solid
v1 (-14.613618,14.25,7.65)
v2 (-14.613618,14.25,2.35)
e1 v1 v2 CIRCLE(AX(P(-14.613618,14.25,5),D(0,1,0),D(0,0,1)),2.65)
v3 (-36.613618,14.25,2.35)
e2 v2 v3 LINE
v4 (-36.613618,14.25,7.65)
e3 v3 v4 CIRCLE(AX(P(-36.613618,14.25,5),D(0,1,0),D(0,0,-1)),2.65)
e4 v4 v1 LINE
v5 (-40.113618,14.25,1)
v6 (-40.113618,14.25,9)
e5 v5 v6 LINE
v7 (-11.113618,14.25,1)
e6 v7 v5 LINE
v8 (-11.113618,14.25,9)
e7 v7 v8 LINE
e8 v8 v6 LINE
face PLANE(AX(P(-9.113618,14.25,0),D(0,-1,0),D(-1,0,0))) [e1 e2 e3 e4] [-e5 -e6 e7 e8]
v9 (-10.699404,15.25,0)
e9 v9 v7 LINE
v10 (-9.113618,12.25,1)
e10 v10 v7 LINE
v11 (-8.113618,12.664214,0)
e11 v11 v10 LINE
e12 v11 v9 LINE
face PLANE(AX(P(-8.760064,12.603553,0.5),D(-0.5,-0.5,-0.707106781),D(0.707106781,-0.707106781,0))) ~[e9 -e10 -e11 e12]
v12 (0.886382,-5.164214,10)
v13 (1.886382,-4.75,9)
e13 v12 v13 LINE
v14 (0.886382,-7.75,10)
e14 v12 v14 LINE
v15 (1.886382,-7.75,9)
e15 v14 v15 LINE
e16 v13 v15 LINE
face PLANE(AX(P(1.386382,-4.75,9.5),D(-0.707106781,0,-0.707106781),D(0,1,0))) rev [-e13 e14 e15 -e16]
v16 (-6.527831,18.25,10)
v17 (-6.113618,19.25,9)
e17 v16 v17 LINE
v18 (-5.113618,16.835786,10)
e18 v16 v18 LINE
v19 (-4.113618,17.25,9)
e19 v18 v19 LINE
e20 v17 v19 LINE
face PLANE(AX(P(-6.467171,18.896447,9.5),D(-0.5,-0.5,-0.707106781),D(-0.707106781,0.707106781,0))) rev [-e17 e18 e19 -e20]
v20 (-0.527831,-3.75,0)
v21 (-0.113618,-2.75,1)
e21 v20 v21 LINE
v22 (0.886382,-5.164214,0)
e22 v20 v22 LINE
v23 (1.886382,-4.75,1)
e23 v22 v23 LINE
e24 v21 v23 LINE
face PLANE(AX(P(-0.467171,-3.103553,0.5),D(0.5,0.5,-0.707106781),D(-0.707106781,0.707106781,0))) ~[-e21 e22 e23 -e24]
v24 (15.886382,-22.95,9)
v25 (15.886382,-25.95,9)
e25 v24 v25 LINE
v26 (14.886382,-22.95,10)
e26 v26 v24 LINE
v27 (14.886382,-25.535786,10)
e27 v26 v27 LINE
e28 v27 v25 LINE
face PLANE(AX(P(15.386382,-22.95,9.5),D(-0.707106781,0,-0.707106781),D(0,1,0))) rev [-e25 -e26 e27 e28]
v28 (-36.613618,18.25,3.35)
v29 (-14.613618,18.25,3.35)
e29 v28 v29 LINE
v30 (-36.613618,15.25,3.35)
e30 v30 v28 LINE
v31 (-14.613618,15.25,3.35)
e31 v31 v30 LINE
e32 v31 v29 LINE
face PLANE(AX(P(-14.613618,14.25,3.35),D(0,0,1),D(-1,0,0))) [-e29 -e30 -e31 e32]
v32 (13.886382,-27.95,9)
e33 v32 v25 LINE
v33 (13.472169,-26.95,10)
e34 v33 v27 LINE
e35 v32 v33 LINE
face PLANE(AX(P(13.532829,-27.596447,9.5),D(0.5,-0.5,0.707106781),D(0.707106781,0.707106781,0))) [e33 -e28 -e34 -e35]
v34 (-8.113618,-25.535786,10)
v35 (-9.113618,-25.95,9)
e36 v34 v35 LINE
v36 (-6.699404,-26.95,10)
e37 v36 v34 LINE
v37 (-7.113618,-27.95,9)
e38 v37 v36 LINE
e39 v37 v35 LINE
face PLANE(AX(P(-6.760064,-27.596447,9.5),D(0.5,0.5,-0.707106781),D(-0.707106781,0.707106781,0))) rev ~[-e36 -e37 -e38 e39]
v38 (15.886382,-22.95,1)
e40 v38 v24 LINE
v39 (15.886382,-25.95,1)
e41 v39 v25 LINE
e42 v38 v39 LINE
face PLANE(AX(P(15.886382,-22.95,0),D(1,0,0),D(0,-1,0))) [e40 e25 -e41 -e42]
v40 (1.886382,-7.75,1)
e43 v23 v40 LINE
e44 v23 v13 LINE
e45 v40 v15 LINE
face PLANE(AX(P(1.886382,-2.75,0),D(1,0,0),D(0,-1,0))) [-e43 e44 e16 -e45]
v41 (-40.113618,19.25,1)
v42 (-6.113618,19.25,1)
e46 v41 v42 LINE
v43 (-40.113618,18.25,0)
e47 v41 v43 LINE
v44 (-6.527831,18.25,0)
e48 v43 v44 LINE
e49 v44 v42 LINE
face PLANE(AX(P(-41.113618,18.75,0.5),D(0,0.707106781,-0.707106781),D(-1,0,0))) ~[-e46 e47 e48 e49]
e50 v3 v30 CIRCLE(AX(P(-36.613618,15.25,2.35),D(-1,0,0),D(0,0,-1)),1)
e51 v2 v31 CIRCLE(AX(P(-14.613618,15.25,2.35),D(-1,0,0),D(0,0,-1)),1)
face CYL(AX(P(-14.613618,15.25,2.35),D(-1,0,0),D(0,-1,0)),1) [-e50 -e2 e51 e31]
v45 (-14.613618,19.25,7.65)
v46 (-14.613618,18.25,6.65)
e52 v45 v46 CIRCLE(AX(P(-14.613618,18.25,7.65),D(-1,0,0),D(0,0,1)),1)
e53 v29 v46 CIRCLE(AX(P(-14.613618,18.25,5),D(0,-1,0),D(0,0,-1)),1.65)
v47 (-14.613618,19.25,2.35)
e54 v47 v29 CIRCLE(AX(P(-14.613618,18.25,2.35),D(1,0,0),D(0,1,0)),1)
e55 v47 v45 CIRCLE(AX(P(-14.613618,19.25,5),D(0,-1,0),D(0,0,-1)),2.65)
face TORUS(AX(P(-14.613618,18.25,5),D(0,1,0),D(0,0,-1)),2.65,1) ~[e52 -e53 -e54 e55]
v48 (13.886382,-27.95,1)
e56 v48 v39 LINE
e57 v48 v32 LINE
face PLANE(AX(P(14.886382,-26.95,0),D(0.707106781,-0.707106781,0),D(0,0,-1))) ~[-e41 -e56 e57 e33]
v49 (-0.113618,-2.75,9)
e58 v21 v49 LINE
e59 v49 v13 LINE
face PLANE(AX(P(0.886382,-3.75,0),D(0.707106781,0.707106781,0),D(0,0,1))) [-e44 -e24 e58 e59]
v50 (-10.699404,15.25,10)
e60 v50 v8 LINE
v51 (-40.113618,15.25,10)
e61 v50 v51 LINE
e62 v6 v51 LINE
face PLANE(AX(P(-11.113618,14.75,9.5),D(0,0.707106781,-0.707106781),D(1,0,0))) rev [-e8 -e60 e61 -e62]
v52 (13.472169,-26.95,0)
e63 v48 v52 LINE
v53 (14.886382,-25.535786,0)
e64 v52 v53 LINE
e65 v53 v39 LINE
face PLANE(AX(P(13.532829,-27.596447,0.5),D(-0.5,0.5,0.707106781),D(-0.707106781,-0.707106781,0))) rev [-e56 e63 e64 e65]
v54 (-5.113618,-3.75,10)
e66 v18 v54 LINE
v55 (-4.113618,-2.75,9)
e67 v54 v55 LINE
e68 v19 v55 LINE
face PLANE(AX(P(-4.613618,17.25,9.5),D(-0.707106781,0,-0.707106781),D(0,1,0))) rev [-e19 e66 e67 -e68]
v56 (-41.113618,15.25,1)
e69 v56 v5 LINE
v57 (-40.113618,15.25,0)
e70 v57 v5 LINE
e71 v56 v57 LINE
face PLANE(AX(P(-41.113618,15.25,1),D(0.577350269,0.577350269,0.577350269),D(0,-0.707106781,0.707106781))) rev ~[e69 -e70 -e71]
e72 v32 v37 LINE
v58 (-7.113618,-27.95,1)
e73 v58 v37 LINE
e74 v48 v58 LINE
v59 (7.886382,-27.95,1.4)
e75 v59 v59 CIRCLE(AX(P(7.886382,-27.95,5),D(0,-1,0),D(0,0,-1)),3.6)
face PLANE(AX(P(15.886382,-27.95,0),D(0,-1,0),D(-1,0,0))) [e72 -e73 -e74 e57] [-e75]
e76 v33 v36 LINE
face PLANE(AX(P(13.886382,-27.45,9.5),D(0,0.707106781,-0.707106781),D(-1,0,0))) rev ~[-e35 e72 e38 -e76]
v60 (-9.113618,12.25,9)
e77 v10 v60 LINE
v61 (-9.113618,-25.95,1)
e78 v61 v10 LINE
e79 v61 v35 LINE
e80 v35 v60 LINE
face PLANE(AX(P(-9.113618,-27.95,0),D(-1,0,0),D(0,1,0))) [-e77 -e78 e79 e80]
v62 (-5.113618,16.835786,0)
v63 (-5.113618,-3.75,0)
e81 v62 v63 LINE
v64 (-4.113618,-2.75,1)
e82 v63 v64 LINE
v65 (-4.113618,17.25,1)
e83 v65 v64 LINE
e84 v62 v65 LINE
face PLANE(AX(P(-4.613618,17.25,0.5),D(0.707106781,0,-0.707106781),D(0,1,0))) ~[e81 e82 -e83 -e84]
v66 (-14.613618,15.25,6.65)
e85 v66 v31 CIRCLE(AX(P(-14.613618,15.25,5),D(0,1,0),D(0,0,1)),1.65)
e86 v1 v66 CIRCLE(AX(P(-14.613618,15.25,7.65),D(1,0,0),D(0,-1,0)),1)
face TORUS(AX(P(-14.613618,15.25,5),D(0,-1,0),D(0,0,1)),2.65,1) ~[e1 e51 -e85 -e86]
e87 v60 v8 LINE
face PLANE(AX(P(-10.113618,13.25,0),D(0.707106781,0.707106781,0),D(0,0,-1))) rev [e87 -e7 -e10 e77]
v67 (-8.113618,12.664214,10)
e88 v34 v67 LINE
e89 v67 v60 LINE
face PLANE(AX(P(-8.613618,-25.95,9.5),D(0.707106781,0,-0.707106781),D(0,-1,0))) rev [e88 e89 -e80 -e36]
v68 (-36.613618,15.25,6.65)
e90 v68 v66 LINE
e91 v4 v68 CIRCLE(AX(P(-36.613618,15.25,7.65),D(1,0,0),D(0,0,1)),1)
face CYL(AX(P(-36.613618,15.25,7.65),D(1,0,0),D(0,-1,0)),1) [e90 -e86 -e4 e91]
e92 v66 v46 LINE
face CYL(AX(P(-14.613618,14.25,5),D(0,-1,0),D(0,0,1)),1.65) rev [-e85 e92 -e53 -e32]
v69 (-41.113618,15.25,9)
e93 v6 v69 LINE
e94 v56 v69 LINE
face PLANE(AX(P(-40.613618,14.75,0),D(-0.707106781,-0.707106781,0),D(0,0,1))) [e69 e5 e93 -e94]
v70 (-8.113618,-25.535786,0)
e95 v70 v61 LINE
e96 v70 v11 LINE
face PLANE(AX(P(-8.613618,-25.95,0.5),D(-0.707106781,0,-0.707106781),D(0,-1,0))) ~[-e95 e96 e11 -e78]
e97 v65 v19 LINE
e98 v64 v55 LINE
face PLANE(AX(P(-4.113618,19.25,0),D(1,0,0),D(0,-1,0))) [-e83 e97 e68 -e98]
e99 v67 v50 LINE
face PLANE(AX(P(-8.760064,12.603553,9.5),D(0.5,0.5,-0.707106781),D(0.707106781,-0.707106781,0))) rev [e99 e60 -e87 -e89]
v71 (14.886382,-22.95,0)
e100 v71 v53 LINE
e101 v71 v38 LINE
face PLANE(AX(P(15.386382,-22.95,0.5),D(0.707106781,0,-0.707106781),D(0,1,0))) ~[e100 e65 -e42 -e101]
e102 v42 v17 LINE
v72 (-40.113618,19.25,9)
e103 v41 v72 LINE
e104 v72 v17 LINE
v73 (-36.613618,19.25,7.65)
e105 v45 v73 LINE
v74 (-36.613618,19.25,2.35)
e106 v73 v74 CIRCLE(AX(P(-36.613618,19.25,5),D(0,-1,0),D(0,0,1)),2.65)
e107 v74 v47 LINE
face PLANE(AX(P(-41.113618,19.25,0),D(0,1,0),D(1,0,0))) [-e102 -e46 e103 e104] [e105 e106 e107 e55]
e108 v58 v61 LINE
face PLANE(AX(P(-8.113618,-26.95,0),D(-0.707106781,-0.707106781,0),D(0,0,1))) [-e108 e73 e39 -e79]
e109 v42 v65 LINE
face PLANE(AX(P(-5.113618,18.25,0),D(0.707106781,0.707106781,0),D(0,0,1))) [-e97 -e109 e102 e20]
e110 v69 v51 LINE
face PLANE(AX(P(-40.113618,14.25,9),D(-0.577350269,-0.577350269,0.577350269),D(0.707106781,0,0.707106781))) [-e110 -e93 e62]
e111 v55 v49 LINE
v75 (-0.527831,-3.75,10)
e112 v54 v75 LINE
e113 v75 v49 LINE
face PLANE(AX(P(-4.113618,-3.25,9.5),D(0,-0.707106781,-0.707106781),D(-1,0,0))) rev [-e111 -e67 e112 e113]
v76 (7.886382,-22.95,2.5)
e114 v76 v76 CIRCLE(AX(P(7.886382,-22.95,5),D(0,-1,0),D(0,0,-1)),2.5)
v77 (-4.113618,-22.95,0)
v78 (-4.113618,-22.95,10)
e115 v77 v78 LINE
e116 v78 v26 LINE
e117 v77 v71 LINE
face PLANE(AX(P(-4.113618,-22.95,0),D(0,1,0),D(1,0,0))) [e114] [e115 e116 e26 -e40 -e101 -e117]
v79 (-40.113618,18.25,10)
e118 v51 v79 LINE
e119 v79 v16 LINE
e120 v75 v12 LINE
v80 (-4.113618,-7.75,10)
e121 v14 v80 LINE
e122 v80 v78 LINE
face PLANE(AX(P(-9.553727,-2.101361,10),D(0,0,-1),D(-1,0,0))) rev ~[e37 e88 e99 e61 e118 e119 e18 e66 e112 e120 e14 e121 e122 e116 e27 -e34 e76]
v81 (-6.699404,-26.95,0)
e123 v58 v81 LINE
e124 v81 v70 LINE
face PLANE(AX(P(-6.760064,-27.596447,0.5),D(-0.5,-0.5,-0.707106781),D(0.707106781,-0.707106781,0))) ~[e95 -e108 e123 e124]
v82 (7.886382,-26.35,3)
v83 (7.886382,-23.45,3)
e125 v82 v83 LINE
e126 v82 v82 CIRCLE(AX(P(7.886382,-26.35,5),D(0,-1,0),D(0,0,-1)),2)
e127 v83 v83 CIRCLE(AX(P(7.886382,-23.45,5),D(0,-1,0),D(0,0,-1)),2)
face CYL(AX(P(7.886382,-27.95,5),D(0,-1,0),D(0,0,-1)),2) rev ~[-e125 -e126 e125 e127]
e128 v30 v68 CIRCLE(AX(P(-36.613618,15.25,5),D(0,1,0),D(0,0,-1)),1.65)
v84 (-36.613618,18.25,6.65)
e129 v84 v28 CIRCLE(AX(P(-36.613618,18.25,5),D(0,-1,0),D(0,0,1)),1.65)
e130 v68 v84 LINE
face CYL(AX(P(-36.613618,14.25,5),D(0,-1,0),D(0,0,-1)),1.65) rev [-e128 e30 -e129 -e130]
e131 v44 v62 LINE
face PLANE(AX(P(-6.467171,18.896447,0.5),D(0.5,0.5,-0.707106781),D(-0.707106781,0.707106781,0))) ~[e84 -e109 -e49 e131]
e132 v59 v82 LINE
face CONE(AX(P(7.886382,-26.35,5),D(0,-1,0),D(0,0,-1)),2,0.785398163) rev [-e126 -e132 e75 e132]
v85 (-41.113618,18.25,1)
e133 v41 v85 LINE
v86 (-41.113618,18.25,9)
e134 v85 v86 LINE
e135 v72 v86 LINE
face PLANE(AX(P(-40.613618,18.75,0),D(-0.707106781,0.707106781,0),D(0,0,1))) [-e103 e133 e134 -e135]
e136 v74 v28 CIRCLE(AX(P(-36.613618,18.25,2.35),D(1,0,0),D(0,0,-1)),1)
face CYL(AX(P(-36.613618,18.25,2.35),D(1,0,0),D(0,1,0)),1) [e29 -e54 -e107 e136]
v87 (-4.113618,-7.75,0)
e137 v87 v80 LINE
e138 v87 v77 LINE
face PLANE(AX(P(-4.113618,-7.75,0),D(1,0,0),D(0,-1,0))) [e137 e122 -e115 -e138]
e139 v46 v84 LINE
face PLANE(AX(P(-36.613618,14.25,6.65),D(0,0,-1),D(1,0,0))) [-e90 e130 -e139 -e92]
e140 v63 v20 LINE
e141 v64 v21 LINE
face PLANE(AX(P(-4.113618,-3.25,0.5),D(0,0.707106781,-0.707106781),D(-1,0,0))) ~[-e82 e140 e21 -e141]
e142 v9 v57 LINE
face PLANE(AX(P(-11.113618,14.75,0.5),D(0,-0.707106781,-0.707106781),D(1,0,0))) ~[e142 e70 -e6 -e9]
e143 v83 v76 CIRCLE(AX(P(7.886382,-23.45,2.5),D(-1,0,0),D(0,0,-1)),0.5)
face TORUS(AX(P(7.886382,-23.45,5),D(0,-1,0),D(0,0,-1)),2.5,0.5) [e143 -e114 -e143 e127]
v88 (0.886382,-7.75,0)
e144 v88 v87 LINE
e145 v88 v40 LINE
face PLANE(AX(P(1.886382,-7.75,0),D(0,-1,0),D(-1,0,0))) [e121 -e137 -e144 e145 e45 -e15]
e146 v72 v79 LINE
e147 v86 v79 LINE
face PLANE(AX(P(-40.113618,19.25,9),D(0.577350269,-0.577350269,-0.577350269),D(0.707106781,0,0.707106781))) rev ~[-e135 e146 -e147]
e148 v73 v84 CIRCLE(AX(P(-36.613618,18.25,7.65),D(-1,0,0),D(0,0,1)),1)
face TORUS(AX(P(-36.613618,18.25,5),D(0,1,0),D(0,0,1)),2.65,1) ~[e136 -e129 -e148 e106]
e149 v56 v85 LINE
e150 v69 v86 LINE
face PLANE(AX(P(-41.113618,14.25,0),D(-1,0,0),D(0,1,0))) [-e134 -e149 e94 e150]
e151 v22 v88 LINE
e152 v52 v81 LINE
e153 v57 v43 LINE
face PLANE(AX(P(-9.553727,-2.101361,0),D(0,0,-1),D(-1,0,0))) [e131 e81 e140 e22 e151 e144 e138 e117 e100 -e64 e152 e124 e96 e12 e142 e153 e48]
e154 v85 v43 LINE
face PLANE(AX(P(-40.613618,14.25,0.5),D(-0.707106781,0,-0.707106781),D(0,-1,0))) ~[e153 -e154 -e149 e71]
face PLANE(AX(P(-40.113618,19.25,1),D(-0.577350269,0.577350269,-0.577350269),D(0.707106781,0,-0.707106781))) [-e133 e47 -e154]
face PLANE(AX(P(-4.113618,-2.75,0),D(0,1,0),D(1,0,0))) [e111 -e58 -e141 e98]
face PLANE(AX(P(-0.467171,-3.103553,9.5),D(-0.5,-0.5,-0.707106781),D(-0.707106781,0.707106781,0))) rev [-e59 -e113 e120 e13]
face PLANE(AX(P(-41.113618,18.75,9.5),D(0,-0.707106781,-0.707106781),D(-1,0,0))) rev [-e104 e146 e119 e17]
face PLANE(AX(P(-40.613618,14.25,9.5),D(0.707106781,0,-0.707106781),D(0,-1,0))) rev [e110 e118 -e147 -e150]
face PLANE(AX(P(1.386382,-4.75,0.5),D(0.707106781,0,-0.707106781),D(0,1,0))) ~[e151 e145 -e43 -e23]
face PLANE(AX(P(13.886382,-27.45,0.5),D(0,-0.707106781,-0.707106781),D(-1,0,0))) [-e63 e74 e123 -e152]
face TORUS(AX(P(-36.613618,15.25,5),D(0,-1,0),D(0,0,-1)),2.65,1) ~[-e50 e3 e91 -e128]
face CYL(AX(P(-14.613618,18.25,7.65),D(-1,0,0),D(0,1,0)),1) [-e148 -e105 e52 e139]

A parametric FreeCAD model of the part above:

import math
import FreeCAD as App
import Part
import Sketcher
Q = App.Units.Quantity


def edges_at(feature, points):
    """Names of the edges that pass closest to the given points."""
    edges = feature.Shape.Edges
    near = lambda p: min(range(len(edges)), key=lambda i: edges[i].distToShape(Part.Vertex(*p))[0])
    return sorted({f"Edge{near(p) + 1}" for p in points})


def add_polygon(sketch, points):
    """Adds a closed chain of lines whose ends are joined by coincident constraints."""
    first, n = sketch.GeometryCount, len(points)
    for a, b in zip(points, points[1:] + points[:1]):
        sketch.addGeometry(Part.LineSegment(App.Vector(*a, 0), App.Vector(*b, 0)), False)
    for i in range(n):
        sketch.addConstraint(Sketcher.Constraint("Coincident", first + i, 2, first + (i + 1) % n, 1))

doc = App.newDocument("Part")
body = doc.addObject("PartDesign::Body", "Body")

# Sketch on XY plane
sketch1 = body.newObject("Sketcher::SketchObject", "Sketch")
sketch1.AttachmentSupport = (doc.getObject("XY_Plane"), [""])
sketch1.MapMode = "FlatFace"
add_polygon(sketch1, [(-4.113618, -7.75), (1.886382, -7.75), (1.886382, -2.75), (-4.113618, -2.75), (-4.113618, 19.25), (-41.113618, 19.25), (-41.113618, 14.25), (-9.113618, 14.25), (-9.113618, -27.95), (15.886382, -27.95), (15.886382, -22.95), (-4.113618, -22.95)])  # lines 0-11
sketch1.addConstraint([
    Sketcher.Constraint("Horizontal", 0),
    Sketcher.Constraint("Vertical", 1),
    Sketcher.Constraint("Horizontal", 2),
    Sketcher.Constraint("Vertical", 3),
    Sketcher.Constraint("Horizontal", 4),
    Sketcher.Constraint("Vertical", 5),
    Sketcher.Constraint("Horizontal", 6),
    Sketcher.Constraint("Vertical", 7),
    Sketcher.Constraint("Horizontal", 8),
    Sketcher.Constraint("Vertical", 9),
    Sketcher.Constraint("Horizontal", 10),
    Sketcher.Constraint("Vertical", 11),
    Sketcher.Constraint("Vertical", 3, 2, 10, 2),
    Sketcher.Constraint("Equal", 1, 5),
    Sketcher.Constraint("Equal", 5, 9),
    Sketcher.Constraint("DistanceX", 0, 1, 0, 2, Q("6 mm")),
    Sketcher.Constraint("DistanceX", 4, 2, 4, 1, Q("37 mm")),
    Sketcher.Constraint("DistanceX", 6, 1, 6, 2, Q("32 mm")),
    Sketcher.Constraint("DistanceX", 8, 1, 8, 2, Q("25 mm")),
    Sketcher.Constraint("DistanceY", 1, 1, 1, 2, Q("5 mm")),
    Sketcher.Constraint("DistanceY", 3, 1, 3, 2, Q("22 mm")),
    Sketcher.Constraint("DistanceY", 7, 2, 7, 1, Q("42.2 mm")),
    Sketcher.Constraint("DistanceY", 0, 2, -1, 1, Q("7.75 mm")),
    Sketcher.Constraint("DistanceX", -1, 1, 0, 2, Q("1.886382 mm")),
])
pad1 = body.newObject("PartDesign::Pad", "Pad")
pad1.Profile = sketch1
pad1.Length = 10

# Sketch on XZ plane
sketch2 = body.newObject("Sketcher::SketchObject", "Sketch001")
sketch2.AttachmentSupport = (doc.getObject("XZ_Plane"), [""])
sketch2.MapMode = "FlatFace"
sketch2.AttachmentOffset = App.Placement(App.Vector(0, 0, 27.95), App.Rotation())
sketch2.addGeometry(Part.Circle(App.Vector(7.886382, 5, 0), App.Vector(0, 0, 1), 2), False)
sketch2.addConstraint([
    Sketcher.Constraint("Diameter", 0, Q("4 mm")),
    Sketcher.Constraint("DistanceY", -1, 1, 0, 3, Q("5 mm")),
    Sketcher.Constraint("DistanceX", -1, 1, 0, 3, Q("7.886382 mm")),
])
pocket1 = body.newObject("PartDesign::Pocket", "Pocket")
pocket1.Profile = sketch2
pocket1.Length = 15
doc.recompute()

chamfer = body.newObject("PartDesign::Chamfer", "Chamfer")
chamfer.Base = (pocket1, edges_at(pocket1, [(7.886, -27.95, 7)]))
chamfer.Size = 1.6
doc.recompute()

fillet = body.newObject("PartDesign::Fillet", "Fillet")
fillet.Base = (chamfer, edges_at(chamfer, [(7.886, -22.95, 7)]))
fillet.Radius = 0.5
doc.recompute()

chamfer2 = body.newObject("PartDesign::Chamfer", "Chamfer001")
chamfer2.Base = (fillet, edges_at(fillet, [
    (15.886, -27.95, 5),
    (-9.114, -27.95, 5),
    (-9.114, 14.25, 5),
    (-4.114, 19.25, 5),
    (1.886, -2.75, 5),
]))
chamfer2.Size = 2
doc.recompute()

chamfer3 = body.newObject("PartDesign::Chamfer", "Chamfer002")
chamfer3.Base = (chamfer2, edges_at(chamfer2, [
    (-4.114, 7.25, 10),
    (-26.114, 14.25, 0),
    (-41.114, 16.75, 0),
    (-4.114, 7.25, 0),
    (1.886, -6.25, 0),
    (-41.114, 16.75, 10),
    (-41.114, 14.25, 5),
    (-41.114, 19.25, 5),
    (-26.114, 14.25, 10),
    (-9.114, -6.85, 0),
    (1.886, -6.25, 10),
    (-9.114, -6.85, 10),
    (-23.614, 19.25, 0),
    (-23.614, 19.25, 10),
    (15.886, -24.45, 0),
    (3.386, -27.95, 0),
    (-2.114, -2.75, 0),
    (0.886, -3.75, 0),
    (14.886, -26.95, 0),
    (-8.114, -26.95, 0),
    (-5.114, 18.25, 0),
    (-2.114, -2.75, 10),
    (3.386, -27.95, 10),
    (15.886, -24.45, 10),
    (0.886, -3.75, 10),
    (14.886, -26.95, 10),
    (-8.114, -26.95, 10),
    (-5.114, 18.25, 10),
    (-10.114, 13.25, 0),
    (-10.114, 13.25, 10),
]))
chamfer3.Size = 1

# Sketch on XZ plane
sketch3 = body.newObject("Sketcher::SketchObject", "Sketch002")
sketch3.AttachmentSupport = (doc.getObject("XZ_Plane"), [""])
sketch3.MapMode = "FlatFace"
sketch3.AttachmentOffset = App.Placement(App.Vector(0, 0, -14.25), App.Rotation())
sketch3.addGeometry([
    Part.LineSegment(App.Vector(-14.613618, 6.65, 0), App.Vector(-36.613618, 6.65, 0)),
    Part.ArcOfCircle(Part.Circle(App.Vector(-36.613618, 5, 0), App.Vector(0, 0, 1), 1.65), math.radians(90), math.radians(270)),
    Part.LineSegment(App.Vector(-36.613618, 3.35, 0), App.Vector(-14.613618, 3.35, 0)),
    Part.ArcOfCircle(Part.Circle(App.Vector(-14.613618, 5, 0), App.Vector(0, 0, 1), 1.65), math.radians(-90), math.radians(90)),
], False)
sketch3.addConstraint([
    Sketcher.Constraint("Tangent", 0, 2, 1, 1),
    Sketcher.Constraint("Tangent", 1, 2, 2, 1),
    Sketcher.Constraint("Tangent", 2, 2, 3, 1),
    Sketcher.Constraint("Tangent", 3, 2, 0, 1),
    Sketcher.Constraint("Horizontal", 0),
    Sketcher.Constraint("Horizontal", 2),
    Sketcher.Constraint("DistanceX", 0, 2, 0, 1, Q("22 mm")),
    Sketcher.Constraint("Radius", 1, Q("1.65 mm")),
    Sketcher.Constraint("DistanceY", -1, 1, 1, 3, Q("5 mm")),
    Sketcher.Constraint("DistanceX", 1, 3, -1, 1, Q("36.613618 mm")),
])
pocket2 = body.newObject("PartDesign::Pocket", "Pocket001")
pocket2.Profile = sketch3
pocket2.Length = 10
doc.recompute()

fillet2 = body.newObject("PartDesign::Fillet", "Fillet001")
fillet2.Base = (pocket2, edges_at(pocket2, [
    (-38.264, 19.25, 5),
    (-25.614, 19.25, 6.65),
    (-12.964, 19.25, 5),
    (-25.614, 19.25, 3.35),
    (-38.264, 14.25, 5),
    (-25.614, 14.25, 3.35),
    (-12.964, 14.25, 5),
    (-25.614, 14.25, 6.65),
]))
fillet2.Radius = 1

doc.recompute()
